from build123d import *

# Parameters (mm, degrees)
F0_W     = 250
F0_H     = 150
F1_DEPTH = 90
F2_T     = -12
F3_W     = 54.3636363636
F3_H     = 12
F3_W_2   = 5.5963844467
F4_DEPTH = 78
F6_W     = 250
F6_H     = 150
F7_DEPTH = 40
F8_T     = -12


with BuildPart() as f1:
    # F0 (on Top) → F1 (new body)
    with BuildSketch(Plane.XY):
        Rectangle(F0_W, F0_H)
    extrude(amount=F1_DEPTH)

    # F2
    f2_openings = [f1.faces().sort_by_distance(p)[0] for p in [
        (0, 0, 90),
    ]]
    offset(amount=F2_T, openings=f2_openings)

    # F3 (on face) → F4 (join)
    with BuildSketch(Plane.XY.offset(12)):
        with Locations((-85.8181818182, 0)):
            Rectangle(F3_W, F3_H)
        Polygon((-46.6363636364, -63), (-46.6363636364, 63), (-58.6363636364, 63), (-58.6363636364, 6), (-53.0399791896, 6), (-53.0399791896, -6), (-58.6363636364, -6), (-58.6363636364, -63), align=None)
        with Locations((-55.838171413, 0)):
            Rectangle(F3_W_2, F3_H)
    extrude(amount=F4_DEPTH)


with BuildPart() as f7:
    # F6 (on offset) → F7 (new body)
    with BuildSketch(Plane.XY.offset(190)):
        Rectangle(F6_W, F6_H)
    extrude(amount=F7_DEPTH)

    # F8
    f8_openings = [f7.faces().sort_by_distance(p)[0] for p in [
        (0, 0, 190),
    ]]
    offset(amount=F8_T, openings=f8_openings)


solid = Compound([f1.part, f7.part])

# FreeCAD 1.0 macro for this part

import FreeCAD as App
import Part
import Sketcher

V = App.Vector
Q = App.Units.Quantity


def faces_at(feature, points):
    """Names of the faces that lie closest to the given points."""
    faces = feature.Shape.Faces
    near = lambda p: min(range(len(faces)), key=lambda i: faces[i].distToShape(Part.Vertex(*p))[0])
    return sorted({f"Face{near(p) + 1}" for p in points})


def add_polygon(sketch, points):
    """Adds a closed chain of lines whose ends are joined by coincident constraints."""
    first, n = sketch.GeometryCount, len(points)
    for a, b in zip(points, points[1:] + points[:1]):
        sketch.addGeometry(Part.LineSegment(App.Vector(*a, 0), App.Vector(*b, 0)), False)
    for i in range(n):
        sketch.addConstraint(Sketcher.Constraint("Coincident", first + i, 2, first + (i + 1) % n, 1))

doc = App.newDocument("Part")
body = doc.addObject("PartDesign::Body", "Body")

# Sketch on XY plane
sketch1 = body.newObject("Sketcher::SketchObject", "Sketch")
sketch1.AttachmentSupport = (doc.getObject("XY_Plane"), [""])
sketch1.MapMode = "FlatFace"
add_polygon(sketch1, [(-125, 75), (-125, -75), (125, -75), (125, 75)])  # lines 0-3
sketch1.addConstraint([
    Sketcher.Constraint("Vertical", 0),
    Sketcher.Constraint("Horizontal", 1),
    Sketcher.Constraint("Vertical", 2),
    Sketcher.Constraint("Horizontal", 3),
    Sketcher.Constraint("Symmetric", 0, 2, 2, 2, -1, 1),
    Sketcher.Constraint("DistanceX", 1, 1, 1, 2, Q("250 mm")),
    Sketcher.Constraint("DistanceY", 0, 2, 0, 1, Q("150 mm")),
])
pad1 = body.newObject("PartDesign::Pad", "Pad")
pad1.Profile = sketch1
pad1.Length = 90
doc.recompute()

thickness = body.newObject("PartDesign::Thickness", "Thickness")
thickness.Base = (pad1, faces_at(pad1, [(0, 0, 90)]))
thickness.Value = 12
thickness.Reversed = True
thickness.Join = "Arc"

# Sketch on XY plane
sketch2 = body.newObject("Sketcher::SketchObject", "Sketch001")
sketch2.AttachmentSupport = (doc.getObject("XY_Plane"), [""])
sketch2.MapMode = "FlatFace"
sketch2.AttachmentOffset = App.Placement(V(0, 0, 12), App.Rotation())
add_polygon(sketch2, [(-113, 6), (-113, -6), (-59, -6), (-59, -63), (-47, -63), (-47, 63), (-59, 63), (-59, 6)])  # lines 0-7
sketch2.addConstraint([
    Sketcher.Constraint("Vertical", 0),
    Sketcher.Constraint("Horizontal", 1),
    Sketcher.Constraint("Vertical", 2),
    Sketcher.Constraint("Horizontal", 3),
    Sketcher.Constraint("Vertical", 4),
    Sketcher.Constraint("Horizontal", 5),
    Sketcher.Constraint("Vertical", 6),
    Sketcher.Constraint("Horizontal", 7),
    Sketcher.Constraint("Symmetric", 2, 2, 5, 2, -1),
    Sketcher.Constraint("Equal", 5, 0),
    Sketcher.Constraint("Equal", 2, 6),
    Sketcher.Constraint("DistanceX", 3, 1, 3, 2, Q("12 mm")),
    Sketcher.Constraint("DistanceY", 2, 2, 2, 1, Q("57 mm")),
    Sketcher.Constraint("DistanceX", 0, 2, -1, 1, Q("113 mm")),
    Sketcher.Constraint("DistanceX", 1, 1, 1, 2, Q("54.363636 mm")),
])
pad2 = body.newObject("PartDesign::Pad", "Pad001")
pad2.Profile = sketch2
pad2.Length = 78
body2 = doc.addObject("PartDesign::Body", "Body001")

# Sketch on XY plane
sketch3 = body2.newObject("Sketcher::SketchObject", "Sketch002")
sketch3.AttachmentSupport = (doc.getObject("XY_Plane001"), [""])
sketch3.MapMode = "FlatFace"
sketch3.AttachmentOffset = App.Placement(V(0, 0, 190), App.Rotation())
add_polygon(sketch3, [(-125, 75), (-125, -75), (125, -75), (125, 75)])  # lines 0-3
sketch3.addConstraint([
    Sketcher.Constraint("Vertical", 0),
    Sketcher.Constraint("Horizontal", 1),
    Sketcher.Constraint("Vertical", 2),
    Sketcher.Constraint("Horizontal", 3),
    Sketcher.Constraint("Symmetric", 0, 2, 2, 2, -1, 1),
    Sketcher.Constraint("DistanceX", 1, 1, 1, 2, Q("250 mm")),
    Sketcher.Constraint("DistanceY", 0, 2, 0, 1, Q("150 mm")),
])
pad3 = body2.newObject("PartDesign::Pad", "Pad002")
pad3.Profile = sketch3
pad3.Length = 40
doc.recompute()

thickness2 = body2.newObject("PartDesign::Thickness", "Thickness001")
thickness2.Base = (pad3, faces_at(pad3, [(0, 0, 190)]))
thickness2.Value = 12
thickness2.Reversed = True
thickness2.Join = "Arc"

doc.recompute()
